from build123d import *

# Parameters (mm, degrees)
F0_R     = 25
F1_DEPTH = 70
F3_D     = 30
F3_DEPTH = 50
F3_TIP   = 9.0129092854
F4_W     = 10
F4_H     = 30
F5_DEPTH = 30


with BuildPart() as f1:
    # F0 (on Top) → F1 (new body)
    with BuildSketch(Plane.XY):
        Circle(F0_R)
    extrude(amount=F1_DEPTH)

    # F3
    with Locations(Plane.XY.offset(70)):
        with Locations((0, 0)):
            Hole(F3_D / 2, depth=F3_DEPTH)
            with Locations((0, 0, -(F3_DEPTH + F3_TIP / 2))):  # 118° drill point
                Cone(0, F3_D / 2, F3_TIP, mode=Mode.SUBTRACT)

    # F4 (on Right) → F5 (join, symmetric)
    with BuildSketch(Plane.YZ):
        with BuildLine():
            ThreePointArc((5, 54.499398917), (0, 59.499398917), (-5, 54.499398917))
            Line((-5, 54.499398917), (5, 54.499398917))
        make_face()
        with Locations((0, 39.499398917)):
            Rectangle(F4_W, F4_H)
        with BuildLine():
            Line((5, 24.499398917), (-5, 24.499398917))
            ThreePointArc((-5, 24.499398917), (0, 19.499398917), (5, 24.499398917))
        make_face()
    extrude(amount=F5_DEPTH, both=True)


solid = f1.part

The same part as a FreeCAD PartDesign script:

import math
import FreeCAD as App
import Part
import Sketcher

V = App.Vector
Q = App.Units.Quantity

doc = App.newDocument("Part")
params = doc.addObject("Spreadsheet::Sheet", "Params")
for row, (alias, value) in enumerate([
    ("sketch1_diameter", "50 mm"),
    ("pad1_length", "70 mm"),
    ("sketch2_diameter", "30 mm"),
    ("hole_diameter", "30 mm"),
    ("hole_depth", "50 mm"),
    ("sketch3_radius", "5 mm"),
    ("sketch3_height", "30 mm"),
    ("pad2_length", "60 mm"),
], start=1):
    params.set(f"A{row}", alias)
    params.set(f"B{row}", "=" + value)
    params.setAlias(f"B{row}", alias)

body = doc.addObject("PartDesign::Body", "Body")

sketch1 = body.newObject("Sketcher::SketchObject", "Sketch")
sketch1.AttachmentSupport = (doc.getObject("XY_Plane"), [""])
sketch1.MapMode = "FlatFace"
sketch1.addGeometry(Part.Circle(V(0, 0, 0), V(0, 0, 1), 25), False)
sketch1.addConstraint([
    Sketcher.Constraint("Coincident", 0, 3, -1, 1),
    Sketcher.Constraint("Diameter", 0, Q("50 mm")),
])
sketch1.setExpression("Constraints[1]", "Params.sketch1_diameter")
pad1 = body.newObject("PartDesign::Pad", "Pad")
pad1.Profile = sketch1
pad1.setExpression("Length", "Params.pad1_length")

sketch2 = body.newObject("Sketcher::SketchObject", "Sketch001")
sketch2.AttachmentSupport = (doc.getObject("XY_Plane"), [""])
sketch2.MapMode = "FlatFace"
sketch2.AttachmentOffset = App.Placement(V(0, 0, 70), App.Rotation())
sketch2.addGeometry(Part.Circle(V(0, 0, 0), V(0, 0, 1), 15), False)
sketch2.addConstraint([
    Sketcher.Constraint("Coincident", 0, 3, -1, 1),
    Sketcher.Constraint("Diameter", 0, Q("30 mm")),
])
sketch2.setExpression("Constraints[1]", "Params.sketch2_diameter")
doc.recompute()
hole = body.newObject("PartDesign::Hole", "Hole")
hole.Profile = sketch2
hole.ThreadType = "None"
hole.setExpression("Diameter", "Params.hole_diameter")
hole.DepthType = "Dimension"
hole.setExpression("Depth", "Params.hole_depth")
hole.DrillPoint = "Angled"
hole.DrillPointAngle = 118

sketch3 = body.newObject("Sketcher::SketchObject", "Sketch002")
sketch3.AttachmentSupport = (doc.getObject("YZ_Plane"), [""])
sketch3.MapMode = "FlatFace"
sketch3.addGeometry([
    Part.ArcOfCircle(Part.Circle(V(0, 54, 0), V(0, 0, 1), 5), math.radians(0), math.radians(180)),
    Part.LineSegment(V(-5, 54, 0), V(-5, 24, 0)),
    Part.ArcOfCircle(Part.Circle(V(0, 24, 0), V(0, 0, 1), 5), math.radians(180), math.radians(360)),
    Part.LineSegment(V(5, 24, 0), V(5, 54, 0)),
], False)
sketch3.addConstraint([
    Sketcher.Constraint("Tangent", 0, 2, 1, 1),
    Sketcher.Constraint("Tangent", 1, 2, 2, 1),
    Sketcher.Constraint("Tangent", 2, 2, 3, 1),
    Sketcher.Constraint("Tangent", 3, 2, 0, 1),
    Sketcher.Constraint("Vertical", 1),
    Sketcher.Constraint("Vertical", 3),
    Sketcher.Constraint("PointOnObject", 0, 3, -2),
    Sketcher.Constraint("Radius", 0, Q("5 mm")),
    Sketcher.Constraint("DistanceY", 1, 2, 1, 1, Q("30 mm")),
    Sketcher.Constraint("DistanceY", -1, 1, 0, 3, Q("54.499399 mm")),
])
sketch3.setExpression("Constraints[7]", "Params.sketch3_radius")
sketch3.setExpression("Constraints[8]", "Params.sketch3_height")
pad2 = body.newObject("PartDesign::Pad", "Pad001")
pad2.Profile = sketch3
pad2.setExpression("Length", "Params.pad2_length")
pad2.Midplane = True

doc.recompute()
